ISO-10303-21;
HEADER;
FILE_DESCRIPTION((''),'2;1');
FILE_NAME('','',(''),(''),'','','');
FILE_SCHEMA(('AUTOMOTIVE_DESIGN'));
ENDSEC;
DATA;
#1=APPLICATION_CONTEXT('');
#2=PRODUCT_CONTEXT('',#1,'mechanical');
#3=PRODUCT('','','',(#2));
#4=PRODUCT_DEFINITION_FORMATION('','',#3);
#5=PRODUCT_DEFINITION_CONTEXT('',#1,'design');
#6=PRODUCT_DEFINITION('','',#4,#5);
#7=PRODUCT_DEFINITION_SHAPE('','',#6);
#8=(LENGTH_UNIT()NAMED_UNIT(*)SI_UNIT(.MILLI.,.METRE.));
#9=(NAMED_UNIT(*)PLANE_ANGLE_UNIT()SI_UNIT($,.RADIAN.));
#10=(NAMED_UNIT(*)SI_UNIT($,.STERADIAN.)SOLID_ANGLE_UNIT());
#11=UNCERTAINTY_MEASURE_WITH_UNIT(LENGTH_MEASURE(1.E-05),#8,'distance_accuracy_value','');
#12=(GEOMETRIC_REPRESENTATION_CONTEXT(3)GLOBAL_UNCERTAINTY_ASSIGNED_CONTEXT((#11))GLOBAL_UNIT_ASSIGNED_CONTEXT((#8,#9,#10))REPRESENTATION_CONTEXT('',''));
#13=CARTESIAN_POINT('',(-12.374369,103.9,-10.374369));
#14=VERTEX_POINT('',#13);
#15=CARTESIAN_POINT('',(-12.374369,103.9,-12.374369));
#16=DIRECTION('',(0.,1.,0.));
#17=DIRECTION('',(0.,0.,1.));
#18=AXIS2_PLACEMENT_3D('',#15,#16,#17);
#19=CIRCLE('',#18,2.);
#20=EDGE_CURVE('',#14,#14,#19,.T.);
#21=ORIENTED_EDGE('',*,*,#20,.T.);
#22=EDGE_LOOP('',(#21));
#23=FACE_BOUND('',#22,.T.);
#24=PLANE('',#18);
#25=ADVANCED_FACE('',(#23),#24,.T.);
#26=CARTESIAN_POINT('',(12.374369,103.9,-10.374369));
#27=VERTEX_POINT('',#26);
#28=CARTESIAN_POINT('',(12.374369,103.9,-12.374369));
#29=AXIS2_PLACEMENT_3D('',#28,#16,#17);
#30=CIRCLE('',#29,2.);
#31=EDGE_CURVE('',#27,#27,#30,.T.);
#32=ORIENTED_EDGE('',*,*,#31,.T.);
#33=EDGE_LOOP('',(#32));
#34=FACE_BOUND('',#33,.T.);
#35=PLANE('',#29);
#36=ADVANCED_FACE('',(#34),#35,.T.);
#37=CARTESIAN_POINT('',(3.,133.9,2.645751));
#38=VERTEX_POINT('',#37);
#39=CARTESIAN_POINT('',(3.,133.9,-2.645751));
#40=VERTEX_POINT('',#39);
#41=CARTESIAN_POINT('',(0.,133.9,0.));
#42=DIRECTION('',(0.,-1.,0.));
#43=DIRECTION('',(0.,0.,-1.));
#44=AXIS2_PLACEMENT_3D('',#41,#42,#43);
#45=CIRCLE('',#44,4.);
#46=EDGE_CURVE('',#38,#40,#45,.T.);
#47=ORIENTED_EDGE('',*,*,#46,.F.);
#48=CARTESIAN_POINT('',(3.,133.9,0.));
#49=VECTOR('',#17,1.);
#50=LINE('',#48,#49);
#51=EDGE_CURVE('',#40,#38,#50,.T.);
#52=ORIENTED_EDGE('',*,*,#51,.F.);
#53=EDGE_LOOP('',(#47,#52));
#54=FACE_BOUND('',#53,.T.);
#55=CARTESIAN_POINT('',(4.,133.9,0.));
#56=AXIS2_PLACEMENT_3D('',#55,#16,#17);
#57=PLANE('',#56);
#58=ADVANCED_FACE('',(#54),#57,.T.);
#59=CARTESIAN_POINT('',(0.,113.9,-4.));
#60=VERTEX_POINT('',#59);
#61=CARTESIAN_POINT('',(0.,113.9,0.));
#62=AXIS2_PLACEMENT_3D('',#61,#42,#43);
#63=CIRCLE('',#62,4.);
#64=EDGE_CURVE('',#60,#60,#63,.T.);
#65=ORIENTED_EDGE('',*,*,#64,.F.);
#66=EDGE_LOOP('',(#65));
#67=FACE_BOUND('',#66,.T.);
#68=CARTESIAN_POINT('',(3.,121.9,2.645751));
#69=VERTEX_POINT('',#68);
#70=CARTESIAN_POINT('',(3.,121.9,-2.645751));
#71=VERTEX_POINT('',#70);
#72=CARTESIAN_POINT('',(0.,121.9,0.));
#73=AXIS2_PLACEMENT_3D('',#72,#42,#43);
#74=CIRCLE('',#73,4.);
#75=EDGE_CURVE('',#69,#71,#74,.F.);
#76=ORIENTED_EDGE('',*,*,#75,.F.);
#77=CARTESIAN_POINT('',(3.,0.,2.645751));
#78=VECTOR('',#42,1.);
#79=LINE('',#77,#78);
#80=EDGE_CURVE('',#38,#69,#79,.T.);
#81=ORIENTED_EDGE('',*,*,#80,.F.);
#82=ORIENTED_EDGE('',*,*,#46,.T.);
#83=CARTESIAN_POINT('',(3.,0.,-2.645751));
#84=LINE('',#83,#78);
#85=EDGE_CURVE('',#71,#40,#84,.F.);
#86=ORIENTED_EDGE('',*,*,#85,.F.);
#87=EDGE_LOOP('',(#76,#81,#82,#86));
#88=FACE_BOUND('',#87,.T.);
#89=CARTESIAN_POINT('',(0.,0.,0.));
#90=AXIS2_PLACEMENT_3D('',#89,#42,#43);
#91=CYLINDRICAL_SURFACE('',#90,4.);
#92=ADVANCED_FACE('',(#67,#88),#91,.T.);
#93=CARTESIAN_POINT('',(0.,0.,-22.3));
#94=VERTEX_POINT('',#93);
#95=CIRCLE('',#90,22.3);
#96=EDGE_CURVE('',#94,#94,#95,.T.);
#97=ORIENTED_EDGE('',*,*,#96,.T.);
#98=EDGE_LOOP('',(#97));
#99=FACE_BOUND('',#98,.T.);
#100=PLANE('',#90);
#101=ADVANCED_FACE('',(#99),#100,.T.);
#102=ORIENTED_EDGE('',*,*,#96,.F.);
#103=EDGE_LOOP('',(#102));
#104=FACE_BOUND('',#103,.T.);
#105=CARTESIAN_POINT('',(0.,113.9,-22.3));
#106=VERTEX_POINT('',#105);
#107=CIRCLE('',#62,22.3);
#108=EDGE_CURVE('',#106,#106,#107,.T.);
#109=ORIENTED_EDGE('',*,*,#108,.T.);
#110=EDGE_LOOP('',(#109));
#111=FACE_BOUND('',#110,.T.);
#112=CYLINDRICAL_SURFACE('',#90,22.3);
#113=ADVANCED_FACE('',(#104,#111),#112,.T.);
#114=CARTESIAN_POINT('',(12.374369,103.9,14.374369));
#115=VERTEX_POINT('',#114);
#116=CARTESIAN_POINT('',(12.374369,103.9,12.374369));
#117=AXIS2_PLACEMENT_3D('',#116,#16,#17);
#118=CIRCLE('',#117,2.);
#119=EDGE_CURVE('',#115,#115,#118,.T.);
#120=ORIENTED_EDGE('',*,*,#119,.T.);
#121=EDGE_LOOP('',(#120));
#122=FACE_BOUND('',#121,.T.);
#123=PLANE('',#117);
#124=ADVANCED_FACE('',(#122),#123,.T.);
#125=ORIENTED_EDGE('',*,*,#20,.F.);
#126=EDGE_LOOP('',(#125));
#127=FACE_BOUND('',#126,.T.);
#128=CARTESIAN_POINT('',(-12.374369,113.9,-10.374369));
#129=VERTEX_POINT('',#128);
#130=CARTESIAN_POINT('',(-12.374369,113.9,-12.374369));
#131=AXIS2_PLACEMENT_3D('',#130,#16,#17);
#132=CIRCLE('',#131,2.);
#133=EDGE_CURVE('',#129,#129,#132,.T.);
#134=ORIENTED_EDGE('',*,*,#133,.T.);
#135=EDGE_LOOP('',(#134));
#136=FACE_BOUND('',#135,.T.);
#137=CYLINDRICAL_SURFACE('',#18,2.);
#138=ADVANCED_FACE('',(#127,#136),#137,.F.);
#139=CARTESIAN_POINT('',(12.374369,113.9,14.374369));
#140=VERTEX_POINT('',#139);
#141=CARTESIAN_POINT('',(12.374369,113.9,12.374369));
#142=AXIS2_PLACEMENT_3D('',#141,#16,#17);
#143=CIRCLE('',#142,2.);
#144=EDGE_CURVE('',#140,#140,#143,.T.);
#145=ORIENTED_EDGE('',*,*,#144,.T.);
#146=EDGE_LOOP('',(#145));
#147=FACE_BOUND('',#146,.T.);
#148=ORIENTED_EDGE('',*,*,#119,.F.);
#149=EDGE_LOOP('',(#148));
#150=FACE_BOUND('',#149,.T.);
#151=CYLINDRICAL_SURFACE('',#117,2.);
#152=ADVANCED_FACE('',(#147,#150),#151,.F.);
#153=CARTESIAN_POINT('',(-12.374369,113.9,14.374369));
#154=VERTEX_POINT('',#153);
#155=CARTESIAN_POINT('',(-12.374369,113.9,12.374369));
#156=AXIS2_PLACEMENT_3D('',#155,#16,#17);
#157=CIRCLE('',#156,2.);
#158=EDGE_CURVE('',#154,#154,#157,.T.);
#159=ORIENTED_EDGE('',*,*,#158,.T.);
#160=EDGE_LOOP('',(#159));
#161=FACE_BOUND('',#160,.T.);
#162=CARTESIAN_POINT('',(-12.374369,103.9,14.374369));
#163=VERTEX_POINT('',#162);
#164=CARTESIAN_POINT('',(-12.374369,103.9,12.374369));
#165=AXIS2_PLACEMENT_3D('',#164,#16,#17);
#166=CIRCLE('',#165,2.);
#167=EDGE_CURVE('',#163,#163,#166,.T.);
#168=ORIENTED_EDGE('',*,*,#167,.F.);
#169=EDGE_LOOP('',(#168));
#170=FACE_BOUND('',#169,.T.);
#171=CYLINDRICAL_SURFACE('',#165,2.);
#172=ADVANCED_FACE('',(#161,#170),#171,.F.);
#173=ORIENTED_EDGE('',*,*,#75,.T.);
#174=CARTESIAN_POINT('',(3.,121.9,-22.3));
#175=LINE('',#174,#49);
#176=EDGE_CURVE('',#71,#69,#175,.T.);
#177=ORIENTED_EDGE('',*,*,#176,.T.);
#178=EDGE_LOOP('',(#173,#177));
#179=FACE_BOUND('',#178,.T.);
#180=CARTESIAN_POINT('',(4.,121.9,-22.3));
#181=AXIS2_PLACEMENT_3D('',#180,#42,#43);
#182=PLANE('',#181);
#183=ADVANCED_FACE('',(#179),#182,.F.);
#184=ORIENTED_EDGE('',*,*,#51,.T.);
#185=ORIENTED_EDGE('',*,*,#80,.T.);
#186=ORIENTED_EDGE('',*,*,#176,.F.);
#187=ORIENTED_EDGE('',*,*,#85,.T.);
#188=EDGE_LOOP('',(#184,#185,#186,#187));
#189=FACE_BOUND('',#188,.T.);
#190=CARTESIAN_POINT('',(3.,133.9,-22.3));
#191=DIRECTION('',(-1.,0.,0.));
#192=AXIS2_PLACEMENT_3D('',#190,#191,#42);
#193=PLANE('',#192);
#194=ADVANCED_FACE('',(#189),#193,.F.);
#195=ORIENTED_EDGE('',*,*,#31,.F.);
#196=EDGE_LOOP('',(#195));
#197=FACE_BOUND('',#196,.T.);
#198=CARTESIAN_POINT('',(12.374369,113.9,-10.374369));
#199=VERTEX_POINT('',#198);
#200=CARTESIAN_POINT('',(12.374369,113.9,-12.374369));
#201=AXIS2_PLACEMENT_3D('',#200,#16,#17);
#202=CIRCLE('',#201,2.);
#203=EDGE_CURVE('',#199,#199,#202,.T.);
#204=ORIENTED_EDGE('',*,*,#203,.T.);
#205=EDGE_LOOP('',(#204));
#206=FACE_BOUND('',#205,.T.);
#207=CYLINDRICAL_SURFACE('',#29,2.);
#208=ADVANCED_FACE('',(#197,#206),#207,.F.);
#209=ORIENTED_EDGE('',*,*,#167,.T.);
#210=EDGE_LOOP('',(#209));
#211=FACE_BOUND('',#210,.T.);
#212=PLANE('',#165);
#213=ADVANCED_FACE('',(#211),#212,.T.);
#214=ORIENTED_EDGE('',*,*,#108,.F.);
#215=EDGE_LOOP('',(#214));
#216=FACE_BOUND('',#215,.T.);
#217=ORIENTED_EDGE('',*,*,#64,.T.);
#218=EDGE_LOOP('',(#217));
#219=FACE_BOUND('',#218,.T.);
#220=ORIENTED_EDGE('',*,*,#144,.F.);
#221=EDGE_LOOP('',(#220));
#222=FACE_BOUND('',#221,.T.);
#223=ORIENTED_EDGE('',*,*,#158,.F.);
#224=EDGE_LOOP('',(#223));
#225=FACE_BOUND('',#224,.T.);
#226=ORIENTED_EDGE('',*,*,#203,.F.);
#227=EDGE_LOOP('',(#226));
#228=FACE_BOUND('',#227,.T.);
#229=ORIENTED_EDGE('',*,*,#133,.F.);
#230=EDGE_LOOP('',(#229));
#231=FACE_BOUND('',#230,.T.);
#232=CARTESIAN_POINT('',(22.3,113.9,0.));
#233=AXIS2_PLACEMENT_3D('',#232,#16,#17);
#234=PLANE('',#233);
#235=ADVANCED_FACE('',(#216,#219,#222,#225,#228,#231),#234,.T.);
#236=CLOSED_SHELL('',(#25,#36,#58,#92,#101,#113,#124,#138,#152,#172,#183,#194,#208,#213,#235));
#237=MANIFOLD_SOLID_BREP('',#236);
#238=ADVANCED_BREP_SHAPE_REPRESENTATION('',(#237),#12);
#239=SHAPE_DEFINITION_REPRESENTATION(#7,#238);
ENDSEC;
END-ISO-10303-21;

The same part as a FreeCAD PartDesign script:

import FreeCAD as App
import Part
import Sketcher
Q = App.Units.Quantity

doc = App.newDocument("Part")
params = doc.addObject("Spreadsheet::Sheet", "Params")
for row, (alias, value) in enumerate([
    ("sketch1_width", "4 mm"),
    ("sketch1_height", "20 mm"),
    ("sketch1_width2", "22.3 mm"),
    ("sketch1_height2", "113.9 mm"),
    ("revolution_angle", "360 deg"),
    ("sketch2_width", "1 mm"),
    ("sketch2_height", "12 mm"),
    ("sketch3_diameter", "4 mm"),
    ("pocket2_length", "10 mm"),
], start=1):
    params.set(f"A{row}", alias)
    params.set(f"B{row}", "=" + value)
    params.setAlias(f"B{row}", alias)

body = doc.addObject("PartDesign::Body", "Body")

sketch1 = body.newObject("Sketcher::SketchObject", "Sketch")
sketch1.AttachmentSupport = (doc.getObject("XY_Plane"), [""])
sketch1.MapMode = "FlatFace"
sketch1.addGeometry([
    Part.LineSegment(App.Vector(0, 0, 0), App.Vector(22.3, 0, 0)),
    Part.LineSegment(App.Vector(22.3, 0, 0), App.Vector(22.3, 113.9, 0)),
    Part.LineSegment(App.Vector(22.3, 113.9, 0), App.Vector(4, 113.9, 0)),
    Part.LineSegment(App.Vector(4, 113.9, 0), App.Vector(4, 133.9, 0)),
    Part.LineSegment(App.Vector(4, 133.9, 0), App.Vector(0, 133.9, 0)),
    Part.LineSegment(App.Vector(0, 133.9, 0), App.Vector(0, 0, 0)),
], False)
sketch1.addConstraint([
    Sketcher.Constraint("Coincident", 0, 2, 1, 1),
    Sketcher.Constraint("Coincident", 1, 2, 2, 1),
    Sketcher.Constraint("Coincident", 2, 2, 3, 1),
    Sketcher.Constraint("Coincident", 3, 2, 4, 1),
    Sketcher.Constraint("Coincident", 4, 2, 5, 1),
    Sketcher.Constraint("Coincident", 5, 2, 0, 1),
    Sketcher.Constraint("Horizontal", 0),
    Sketcher.Constraint("Vertical", 1),
    Sketcher.Constraint("Horizontal", 2),
    Sketcher.Constraint("Vertical", 3),
    Sketcher.Constraint("Horizontal", 4),
    Sketcher.Constraint("Vertical", 5),
    Sketcher.Constraint("Coincident", 5, 2, -1, 1),
    Sketcher.Constraint("DistanceX", 4, 2, 4, 1, Q("4 mm")),
    Sketcher.Constraint("DistanceY", 3, 1, 3, 2, Q("20 mm")),
    Sketcher.Constraint("DistanceX", 0, 1, 0, 2, Q("22.3 mm")),
    Sketcher.Constraint("DistanceY", 1, 1, 1, 2, Q("113.9 mm")),
])
sketch1.setExpression("Constraints[13]", "Params.sketch1_width")
sketch1.setExpression("Constraints[14]", "Params.sketch1_height")
sketch1.setExpression("Constraints[15]", "Params.sketch1_width2")
sketch1.setExpression("Constraints[16]", "Params.sketch1_height2")
revolution = body.newObject("PartDesign::Revolution", "Revolution")
revolution.Profile = sketch1
revolution.ReferenceAxis = (sketch1, ["V_Axis"])
revolution.setExpression("Angle", "Params.revolution_angle")

sketch2 = body.newObject("Sketcher::SketchObject", "Sketch001")
sketch2.AttachmentSupport = (doc.getObject("XY_Plane"), [""])
sketch2.MapMode = "FlatFace"
sketch2.addGeometry([
    Part.LineSegment(App.Vector(3, 133.9, 0), App.Vector(3, 121.9, 0)),
    Part.LineSegment(App.Vector(3, 121.9, 0), App.Vector(4, 121.9, 0)),
    Part.LineSegment(App.Vector(4, 121.9, 0), App.Vector(4, 133.9, 0)),
    Part.LineSegment(App.Vector(4, 133.9, 0), App.Vector(3, 133.9, 0)),
], False)
sketch2.addConstraint([
    Sketcher.Constraint("Coincident", 0, 2, 1, 1),
    Sketcher.Constraint("Coincident", 1, 2, 2, 1),
    Sketcher.Constraint("Coincident", 2, 2, 3, 1),
    Sketcher.Constraint("Coincident", 3, 2, 0, 1),
    Sketcher.Constraint("Vertical", 0),
    Sketcher.Constraint("Horizontal", 1),
    Sketcher.Constraint("Vertical", 2),
    Sketcher.Constraint("Horizontal", 3),
    Sketcher.Constraint("DistanceX", 1, 1, 1, 2, Q("1 mm")),
    Sketcher.Constraint("DistanceY", 0, 2, 0, 1, Q("12 mm")),
    Sketcher.Constraint("DistanceX", -1, 1, 0, 2, Q("3 mm")),
    Sketcher.Constraint("DistanceY", -1, 1, 0, 2, Q("121.9 mm")),
])
sketch2.setExpression("Constraints[8]", "Params.sketch2_width")
sketch2.setExpression("Constraints[9]", "Params.sketch2_height")
pocket1 = body.newObject("PartDesign::Pocket", "Pocket")
pocket1.Profile = sketch2
pocket1.Type = "ThroughAll"
pocket1.Midplane = True

sketch3 = body.newObject("Sketcher::SketchObject", "Sketch002")
sketch3.AttachmentSupport = (doc.getObject("XZ_Plane"), [""])
sketch3.MapMode = "FlatFace"
sketch3.AttachmentOffset = App.Placement(App.Vector(0, 0, -113.9), App.Rotation())
sketch3.addGeometry([
    Part.Circle(App.Vector(-12.4, -12.4, 0), App.Vector(0, 0, 1), 2),
    Part.Circle(App.Vector(12.4, -12.4, 0), App.Vector(0, 0, 1), 2),
    Part.Circle(App.Vector(12.4, 12.4, 0), App.Vector(0, 0, 1), 2),
    Part.Circle(App.Vector(-12.4, 12.4, 0), App.Vector(0, 0, 1), 2),
], False)
sketch3.addConstraint([
    Sketcher.Constraint("Equal", 0, 1),
    Sketcher.Constraint("Equal", 1, 2),
    Sketcher.Constraint("Equal", 2, 3),
    Sketcher.Constraint("Symmetric", 0, 3, 2, 3, -1, 1),
    Sketcher.Constraint("Symmetric", 1, 3, 3, 3, -1, 1),
    Sketcher.Constraint("Symmetric", 0, 3, 1, 3, -2),
    Sketcher.Constraint("Diameter", 0, Q("4 mm")),
    Sketcher.Constraint("DistanceX", 0, 3, -1, 1, Q("12.374369 mm")),
    Sketcher.Constraint("DistanceY", 0, 3, -1, 1, Q("12.374369 mm")),
])
sketch3.setExpression("Constraints[6]", "Params.sketch3_diameter")
pocket2 = body.newObject("PartDesign::Pocket", "Pocket001")
pocket2.Profile = sketch3
pocket2.setExpression("Length", "Params.pocket2_length")
pocket2.Reversed = True

doc.recompute()
